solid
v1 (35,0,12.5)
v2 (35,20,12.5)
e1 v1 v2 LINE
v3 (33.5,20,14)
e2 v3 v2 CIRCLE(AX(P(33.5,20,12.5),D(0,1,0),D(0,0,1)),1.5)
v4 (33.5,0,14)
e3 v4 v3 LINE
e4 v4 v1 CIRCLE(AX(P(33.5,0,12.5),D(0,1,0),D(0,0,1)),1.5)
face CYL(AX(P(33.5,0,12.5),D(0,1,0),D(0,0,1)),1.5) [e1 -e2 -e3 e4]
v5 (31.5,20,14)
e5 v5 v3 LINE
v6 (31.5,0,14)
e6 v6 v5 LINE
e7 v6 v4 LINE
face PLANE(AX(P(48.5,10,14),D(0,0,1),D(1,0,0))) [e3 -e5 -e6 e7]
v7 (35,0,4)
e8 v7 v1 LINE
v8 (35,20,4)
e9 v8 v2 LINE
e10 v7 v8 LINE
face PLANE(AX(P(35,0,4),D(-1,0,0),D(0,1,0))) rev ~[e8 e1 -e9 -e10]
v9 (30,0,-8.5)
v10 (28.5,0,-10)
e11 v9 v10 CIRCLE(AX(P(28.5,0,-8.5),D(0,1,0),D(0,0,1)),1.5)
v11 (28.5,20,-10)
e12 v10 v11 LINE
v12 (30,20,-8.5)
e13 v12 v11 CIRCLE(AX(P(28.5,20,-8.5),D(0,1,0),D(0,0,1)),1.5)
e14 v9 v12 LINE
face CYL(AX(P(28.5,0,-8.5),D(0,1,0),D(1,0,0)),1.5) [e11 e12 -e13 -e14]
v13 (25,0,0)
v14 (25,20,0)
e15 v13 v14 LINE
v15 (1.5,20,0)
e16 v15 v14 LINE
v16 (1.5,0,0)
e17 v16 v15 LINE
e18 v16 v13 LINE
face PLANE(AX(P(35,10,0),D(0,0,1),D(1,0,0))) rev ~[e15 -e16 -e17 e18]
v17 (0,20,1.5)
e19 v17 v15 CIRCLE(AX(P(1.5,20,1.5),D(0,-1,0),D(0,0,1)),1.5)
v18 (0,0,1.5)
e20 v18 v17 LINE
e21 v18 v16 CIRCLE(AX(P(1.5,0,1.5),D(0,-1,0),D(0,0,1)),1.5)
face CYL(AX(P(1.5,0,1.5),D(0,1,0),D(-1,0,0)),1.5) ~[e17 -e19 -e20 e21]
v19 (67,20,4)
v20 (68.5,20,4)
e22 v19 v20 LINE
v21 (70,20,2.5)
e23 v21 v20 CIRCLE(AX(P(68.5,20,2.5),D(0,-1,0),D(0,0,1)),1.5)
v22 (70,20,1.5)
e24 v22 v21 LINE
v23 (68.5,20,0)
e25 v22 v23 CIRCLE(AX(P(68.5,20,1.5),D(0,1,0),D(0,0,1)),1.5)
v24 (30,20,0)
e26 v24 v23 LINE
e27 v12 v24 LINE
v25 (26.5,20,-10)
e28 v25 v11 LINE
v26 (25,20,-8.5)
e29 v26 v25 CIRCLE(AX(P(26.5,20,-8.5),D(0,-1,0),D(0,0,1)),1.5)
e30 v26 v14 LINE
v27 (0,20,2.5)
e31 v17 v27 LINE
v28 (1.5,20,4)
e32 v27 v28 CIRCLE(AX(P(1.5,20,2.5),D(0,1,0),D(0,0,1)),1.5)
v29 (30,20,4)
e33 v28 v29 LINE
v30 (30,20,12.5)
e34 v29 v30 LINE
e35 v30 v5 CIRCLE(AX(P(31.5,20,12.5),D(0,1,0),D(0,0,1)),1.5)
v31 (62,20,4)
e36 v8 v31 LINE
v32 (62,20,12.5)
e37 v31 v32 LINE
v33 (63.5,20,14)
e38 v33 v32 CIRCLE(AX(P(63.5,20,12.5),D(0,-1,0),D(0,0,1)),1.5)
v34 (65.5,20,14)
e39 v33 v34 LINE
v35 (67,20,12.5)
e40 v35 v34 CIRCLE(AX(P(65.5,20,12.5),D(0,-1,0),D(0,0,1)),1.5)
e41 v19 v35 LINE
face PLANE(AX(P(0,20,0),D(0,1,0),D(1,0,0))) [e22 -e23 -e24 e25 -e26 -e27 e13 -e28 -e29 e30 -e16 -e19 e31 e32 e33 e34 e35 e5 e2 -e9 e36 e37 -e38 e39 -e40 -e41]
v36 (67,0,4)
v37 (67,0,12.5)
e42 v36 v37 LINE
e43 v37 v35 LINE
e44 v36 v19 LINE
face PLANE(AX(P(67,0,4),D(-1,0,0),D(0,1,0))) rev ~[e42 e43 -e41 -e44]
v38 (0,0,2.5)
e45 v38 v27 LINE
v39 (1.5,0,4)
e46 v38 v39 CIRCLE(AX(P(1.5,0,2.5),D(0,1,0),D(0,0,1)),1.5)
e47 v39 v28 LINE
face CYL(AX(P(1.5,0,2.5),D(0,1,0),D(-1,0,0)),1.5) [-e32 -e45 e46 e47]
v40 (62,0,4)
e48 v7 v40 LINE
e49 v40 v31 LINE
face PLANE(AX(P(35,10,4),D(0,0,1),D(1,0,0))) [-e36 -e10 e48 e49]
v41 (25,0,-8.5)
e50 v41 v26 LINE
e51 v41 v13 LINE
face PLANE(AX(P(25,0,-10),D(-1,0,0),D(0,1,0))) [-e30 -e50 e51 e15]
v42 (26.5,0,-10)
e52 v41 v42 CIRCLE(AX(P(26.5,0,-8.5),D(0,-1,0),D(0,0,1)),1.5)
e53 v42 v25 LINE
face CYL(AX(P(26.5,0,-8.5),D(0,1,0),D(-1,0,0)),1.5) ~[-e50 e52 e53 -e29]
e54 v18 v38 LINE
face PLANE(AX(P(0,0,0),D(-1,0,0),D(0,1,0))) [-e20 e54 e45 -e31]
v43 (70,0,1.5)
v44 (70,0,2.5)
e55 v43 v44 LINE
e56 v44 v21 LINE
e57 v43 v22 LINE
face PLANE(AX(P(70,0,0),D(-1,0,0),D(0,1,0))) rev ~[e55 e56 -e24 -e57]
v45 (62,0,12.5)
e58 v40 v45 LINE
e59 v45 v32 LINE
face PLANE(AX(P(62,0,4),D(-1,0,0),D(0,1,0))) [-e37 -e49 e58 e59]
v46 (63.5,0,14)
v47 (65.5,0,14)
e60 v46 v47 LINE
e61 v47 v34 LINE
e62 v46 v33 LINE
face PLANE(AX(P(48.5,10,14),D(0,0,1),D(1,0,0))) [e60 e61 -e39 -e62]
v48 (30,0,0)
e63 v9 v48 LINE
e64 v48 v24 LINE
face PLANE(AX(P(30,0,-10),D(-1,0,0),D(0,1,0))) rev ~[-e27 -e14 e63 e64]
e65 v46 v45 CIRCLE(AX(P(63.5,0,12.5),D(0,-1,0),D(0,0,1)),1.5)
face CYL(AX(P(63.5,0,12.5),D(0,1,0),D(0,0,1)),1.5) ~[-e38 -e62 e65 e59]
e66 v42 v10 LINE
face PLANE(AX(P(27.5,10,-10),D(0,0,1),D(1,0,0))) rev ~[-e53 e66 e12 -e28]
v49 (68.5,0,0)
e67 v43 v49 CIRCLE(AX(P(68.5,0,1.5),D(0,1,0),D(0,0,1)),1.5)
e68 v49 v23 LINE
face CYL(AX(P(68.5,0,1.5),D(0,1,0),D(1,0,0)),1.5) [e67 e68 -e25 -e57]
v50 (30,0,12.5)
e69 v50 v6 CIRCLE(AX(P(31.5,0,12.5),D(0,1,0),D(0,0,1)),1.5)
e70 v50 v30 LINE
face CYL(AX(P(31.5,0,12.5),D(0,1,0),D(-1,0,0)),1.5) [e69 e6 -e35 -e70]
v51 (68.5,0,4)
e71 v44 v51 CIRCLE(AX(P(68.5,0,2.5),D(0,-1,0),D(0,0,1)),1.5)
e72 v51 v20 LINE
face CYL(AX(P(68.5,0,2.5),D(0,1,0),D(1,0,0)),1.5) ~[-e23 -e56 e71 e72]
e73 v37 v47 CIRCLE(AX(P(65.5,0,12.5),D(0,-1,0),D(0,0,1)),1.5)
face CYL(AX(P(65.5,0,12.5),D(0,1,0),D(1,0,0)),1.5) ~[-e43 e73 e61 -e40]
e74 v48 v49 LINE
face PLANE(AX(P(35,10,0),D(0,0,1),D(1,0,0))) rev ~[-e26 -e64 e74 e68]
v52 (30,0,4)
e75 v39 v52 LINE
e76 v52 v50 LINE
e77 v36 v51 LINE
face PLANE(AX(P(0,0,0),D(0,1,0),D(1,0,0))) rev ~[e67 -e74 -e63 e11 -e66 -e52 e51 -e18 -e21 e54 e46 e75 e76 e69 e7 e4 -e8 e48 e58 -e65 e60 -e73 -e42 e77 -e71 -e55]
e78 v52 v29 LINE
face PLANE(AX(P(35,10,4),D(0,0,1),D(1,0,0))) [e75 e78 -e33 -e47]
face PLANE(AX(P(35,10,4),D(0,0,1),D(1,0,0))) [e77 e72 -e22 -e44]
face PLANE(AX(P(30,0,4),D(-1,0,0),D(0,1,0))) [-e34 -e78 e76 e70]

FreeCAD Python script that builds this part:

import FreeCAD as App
import Part
import Sketcher

V = App.Vector
Q = App.Units.Quantity


def edges_at(feature, points):
    """Names of the edges that pass closest to the given points."""
    edges = feature.Shape.Edges
    near = lambda p: min(range(len(edges)), key=lambda i: edges[i].distToShape(Part.Vertex(*p))[0])
    return sorted({f"Edge{near(p) + 1}" for p in points})

doc = App.newDocument("Part")
params = doc.addObject("Spreadsheet::Sheet", "Params")
for row, (alias, value) in enumerate([
    ("sketch1_width", "27 mm"),
    ("sketch1_height", "20 mm"),
    ("pad1_length", "10 mm"),
    ("sketch2_width", "37 mm"),
    ("sketch2_height", "20 mm"),
    ("pad2_length", "10 mm"),
    ("fillet_radius", "1.5 mm"),
    ("sketch3_width", "5 mm"),
    ("sketch3_height", "20 mm"),
    ("pad3_length", "10 mm"),
    ("fillet2_radius", "1.5 mm"),
    ("sketch4_width", "70 mm"),
    ("sketch4_height", "20 mm"),
    ("pad4_length", "4 mm"),
    ("fillet3_radius", "1.5 mm"),
], start=1):
    params.set(f"A{row}", alias)
    params.set(f"B{row}", "=" + value)
    params.setAlias(f"B{row}", alias)

body = doc.addObject("PartDesign::Body", "Body")

# Sketch on XY plane
sketch1 = doc.addObject("Sketcher::SketchObject", "Sketch")
body.addObject(sketch1)
sketch1.AttachmentSupport = (doc.XY_Plane, [""])
sketch1.MapMode = "FlatFace"
sketch1.AttachmentOffset = App.Placement(V(0, 0, 4), App.Rotation())
sketch1.addGeometry(Part.LineSegment(V(35, 20, 0), V(35, 0, 0)), False)
sketch1.addGeometry(Part.LineSegment(V(35, 0, 0), V(62, 0, 0)), False)
sketch1.addGeometry(Part.LineSegment(V(62, 0, 0), V(62, 20, 0)), False)
sketch1.addGeometry(Part.LineSegment(V(62, 20, 0), V(35, 20, 0)), False)
sketch1.addConstraint(Sketcher.Constraint("Coincident", 0, 2, 1, 1))
sketch1.addConstraint(Sketcher.Constraint("Coincident", 1, 2, 2, 1))
sketch1.addConstraint(Sketcher.Constraint("Coincident", 2, 2, 3, 1))
sketch1.addConstraint(Sketcher.Constraint("Coincident", 3, 2, 0, 1))
sketch1.addConstraint(Sketcher.Constraint("Vertical", 0))
sketch1.addConstraint(Sketcher.Constraint("Horizontal", 1))
sketch1.addConstraint(Sketcher.Constraint("Vertical", 2))
sketch1.addConstraint(Sketcher.Constraint("Horizontal", 3))
sketch1.addConstraint(Sketcher.Constraint("PointOnObject", 0, 2, -1))
sketch1.addConstraint(Sketcher.Constraint("DistanceX", 1, 1, 1, 2, Q("27 mm")))
sketch1.addConstraint(Sketcher.Constraint("DistanceY", 0, 2, 0, 1, Q("20 mm")))
sketch1.addConstraint(Sketcher.Constraint("DistanceX", -1, 1, 0, 2, Q("35 mm")))
sketch1.setExpression("Constraints[9]", "Params.sketch1_width")
sketch1.setExpression("Constraints[10]", "Params.sketch1_height")
pad1 = doc.addObject("PartDesign::Pad", "Pad")
body.addObject(pad1)
pad1.Profile = sketch1
pad1.setExpression("Length", "Params.pad1_length")
body2 = doc.addObject("PartDesign::Body", "Body001")
body2.AllowCompound = True

# Sketch on XY plane
sketch2 = doc.addObject("Sketcher::SketchObject", "Sketch001")
body2.addObject(sketch2)
sketch2.AttachmentSupport = (doc.getObject("XY_Plane001"), [""])
sketch2.MapMode = "FlatFace"
sketch2.AttachmentOffset = App.Placement(V(0, 0, 4), App.Rotation())
sketch2.addGeometry(Part.LineSegment(V(30, 20, 0), V(30, 0, 0)), False)
sketch2.addGeometry(Part.LineSegment(V(30, 0, 0), V(67, 0, 0)), False)
sketch2.addGeometry(Part.LineSegment(V(67, 0, 0), V(67, 20, 0)), False)
sketch2.addGeometry(Part.LineSegment(V(67, 20, 0), V(30, 20, 0)), False)
sketch2.addConstraint(Sketcher.Constraint("Coincident", 0, 2, 1, 1))
sketch2.addConstraint(Sketcher.Constraint("Coincident", 1, 2, 2, 1))
sketch2.addConstraint(Sketcher.Constraint("Coincident", 2, 2, 3, 1))
sketch2.addConstraint(Sketcher.Constraint("Coincident", 3, 2, 0, 1))
sketch2.addConstraint(Sketcher.Constraint("Vertical", 0))
sketch2.addConstraint(Sketcher.Constraint("Horizontal", 1))
sketch2.addConstraint(Sketcher.Constraint("Vertical", 2))
sketch2.addConstraint(Sketcher.Constraint("Horizontal", 3))
sketch2.addConstraint(Sketcher.Constraint("PointOnObject", 0, 2, -1))
sketch2.addConstraint(Sketcher.Constraint("DistanceX", 1, 1, 1, 2, Q("37 mm")))
sketch2.addConstraint(Sketcher.Constraint("DistanceY", 0, 2, 0, 1, Q("20 mm")))
sketch2.addConstraint(Sketcher.Constraint("DistanceX", -1, 1, 0, 2, Q("30 mm")))
sketch2.setExpression("Constraints[9]", "Params.sketch2_width")
sketch2.setExpression("Constraints[10]", "Params.sketch2_height")
pad2 = doc.addObject("PartDesign::Pad", "Pad001")
body2.addObject(pad2)
pad2.Profile = sketch2
pad2.setExpression("Length", "Params.pad2_length")
doc.recompute()

boolean = doc.addObject("PartDesign::Boolean", "Boolean")
body2.addObject(boolean)
boolean.Type = "Cut"
boolean.addObjects([body])
doc.recompute()

fillet = doc.addObject("PartDesign::Fillet", "Fillet")
body2.addObject(fillet)
fillet.Base = (boolean, edges_at(boolean, [
    (30, 10, 14),
    (35, 10, 14),
    (67, 10, 14),
    (62, 10, 14),
]))
fillet.setExpression("Radius", "Params.fillet_radius")
body3 = doc.addObject("PartDesign::Body", "Body002")

# Sketch on XY plane
sketch3 = doc.addObject("Sketcher::SketchObject", "Sketch002")
body3.addObject(sketch3)
sketch3.AttachmentSupport = (doc.getObject("XY_Plane002"), [""])
sketch3.MapMode = "FlatFace"
sketch3.AttachmentOffset = App.Placement(V(0, 0, -10), App.Rotation())
sketch3.addGeometry(Part.LineSegment(V(25, 20, 0), V(25, 0, 0)), False)
sketch3.addGeometry(Part.LineSegment(V(25, 0, 0), V(30, 0, 0)), False)
sketch3.addGeometry(Part.LineSegment(V(30, 0, 0), V(30, 20, 0)), False)
sketch3.addGeometry(Part.LineSegment(V(30, 20, 0), V(25, 20, 0)), False)
sketch3.addConstraint(Sketcher.Constraint("Coincident", 0, 2, 1, 1))
sketch3.addConstraint(Sketcher.Constraint("Coincident", 1, 2, 2, 1))
sketch3.addConstraint(Sketcher.Constraint("Coincident", 2, 2, 3, 1))
sketch3.addConstraint(Sketcher.Constraint("Coincident", 3, 2, 0, 1))
sketch3.addConstraint(Sketcher.Constraint("Vertical", 0))
sketch3.addConstraint(Sketcher.Constraint("Horizontal", 1))
sketch3.addConstraint(Sketcher.Constraint("Vertical", 2))
sketch3.addConstraint(Sketcher.Constraint("Horizontal", 3))
sketch3.addConstraint(Sketcher.Constraint("PointOnObject", 0, 2, -1))
sketch3.addConstraint(Sketcher.Constraint("DistanceX", 1, 1, 1, 2, Q("5 mm")))
sketch3.addConstraint(Sketcher.Constraint("DistanceY", 0, 2, 0, 1, Q("20 mm")))
sketch3.addConstraint(Sketcher.Constraint("DistanceX", -1, 1, 0, 2, Q("25 mm")))
sketch3.setExpression("Constraints[9]", "Params.sketch3_width")
sketch3.setExpression("Constraints[10]", "Params.sketch3_height")
pad3 = doc.addObject("PartDesign::Pad", "Pad002")
body3.addObject(pad3)
pad3.Profile = sketch3
pad3.setExpression("Length", "Params.pad3_length")
doc.recompute()

fillet2 = doc.addObject("PartDesign::Fillet", "Fillet001")
body3.addObject(fillet2)
fillet2.Base = (pad3, edges_at(pad3, [(25, 10, -10), (30, 10, -10)]))
fillet2.setExpression("Radius", "Params.fillet2_radius")
body4 = doc.addObject("PartDesign::Body", "Body003")

# Sketch on XY plane
sketch4 = doc.addObject("Sketcher::SketchObject", "Sketch003")
body4.addObject(sketch4)
sketch4.AttachmentSupport = (doc.getObject("XY_Plane003"), [""])
sketch4.MapMode = "FlatFace"
sketch4.addGeometry(Part.LineSegment(V(0, 20, 0), V(0, 0, 0)), False)
sketch4.addGeometry(Part.LineSegment(V(0, 0, 0), V(70, 0, 0)), False)
sketch4.addGeometry(Part.LineSegment(V(70, 0, 0), V(70, 20, 0)), False)
sketch4.addGeometry(Part.LineSegment(V(70, 20, 0), V(0, 20, 0)), False)
sketch4.addConstraint(Sketcher.Constraint("Coincident", 0, 2, 1, 1))
sketch4.addConstraint(Sketcher.Constraint("Coincident", 1, 2, 2, 1))
sketch4.addConstraint(Sketcher.Constraint("Coincident", 2, 2, 3, 1))
sketch4.addConstraint(Sketcher.Constraint("Coincident", 3, 2, 0, 1))
sketch4.addConstraint(Sketcher.Constraint("Vertical", 0))
sketch4.addConstraint(Sketcher.Constraint("Horizontal", 1))
sketch4.addConstraint(Sketcher.Constraint("Vertical", 2))
sketch4.addConstraint(Sketcher.Constraint("Horizontal", 3))
sketch4.addConstraint(Sketcher.Constraint("Coincident", 0, 2, -1, 1))
sketch4.addConstraint(Sketcher.Constraint("DistanceX", 1, 1, 1, 2, Q("70 mm")))
sketch4.addConstraint(Sketcher.Constraint("DistanceY", 0, 2, 0, 1, Q("20 mm")))
sketch4.setExpression("Constraints[9]", "Params.sketch4_width")
sketch4.setExpression("Constraints[10]", "Params.sketch4_height")
pad4 = doc.addObject("PartDesign::Pad", "Pad003")
body4.addObject(pad4)
pad4.Profile = sketch4
pad4.setExpression("Length", "Params.pad4_length")
doc.recompute()

fillet3 = doc.addObject("PartDesign::Fillet", "Fillet002")
body4.addObject(fillet3)
fillet3.Base = (pad4, edges_at(pad4, [
    (0, 10, 4),
    (0, 10, 0),
    (70, 10, 4),
    (70, 10, 0),
]))
fillet3.setExpression("Radius", "Params.fillet3_radius")
doc.recompute()

boolean2 = doc.addObject("PartDesign::Boolean", "Boolean001")
body4.addObject(boolean2)
boolean2.Type = "Fuse"
boolean2.addObjects([body2])
doc.recompute()

boolean3 = doc.addObject("PartDesign::Boolean", "Boolean002")
body4.addObject(boolean3)
boolean3.Type = "Fuse"
boolean3.addObjects([body3])

doc.recompute()
